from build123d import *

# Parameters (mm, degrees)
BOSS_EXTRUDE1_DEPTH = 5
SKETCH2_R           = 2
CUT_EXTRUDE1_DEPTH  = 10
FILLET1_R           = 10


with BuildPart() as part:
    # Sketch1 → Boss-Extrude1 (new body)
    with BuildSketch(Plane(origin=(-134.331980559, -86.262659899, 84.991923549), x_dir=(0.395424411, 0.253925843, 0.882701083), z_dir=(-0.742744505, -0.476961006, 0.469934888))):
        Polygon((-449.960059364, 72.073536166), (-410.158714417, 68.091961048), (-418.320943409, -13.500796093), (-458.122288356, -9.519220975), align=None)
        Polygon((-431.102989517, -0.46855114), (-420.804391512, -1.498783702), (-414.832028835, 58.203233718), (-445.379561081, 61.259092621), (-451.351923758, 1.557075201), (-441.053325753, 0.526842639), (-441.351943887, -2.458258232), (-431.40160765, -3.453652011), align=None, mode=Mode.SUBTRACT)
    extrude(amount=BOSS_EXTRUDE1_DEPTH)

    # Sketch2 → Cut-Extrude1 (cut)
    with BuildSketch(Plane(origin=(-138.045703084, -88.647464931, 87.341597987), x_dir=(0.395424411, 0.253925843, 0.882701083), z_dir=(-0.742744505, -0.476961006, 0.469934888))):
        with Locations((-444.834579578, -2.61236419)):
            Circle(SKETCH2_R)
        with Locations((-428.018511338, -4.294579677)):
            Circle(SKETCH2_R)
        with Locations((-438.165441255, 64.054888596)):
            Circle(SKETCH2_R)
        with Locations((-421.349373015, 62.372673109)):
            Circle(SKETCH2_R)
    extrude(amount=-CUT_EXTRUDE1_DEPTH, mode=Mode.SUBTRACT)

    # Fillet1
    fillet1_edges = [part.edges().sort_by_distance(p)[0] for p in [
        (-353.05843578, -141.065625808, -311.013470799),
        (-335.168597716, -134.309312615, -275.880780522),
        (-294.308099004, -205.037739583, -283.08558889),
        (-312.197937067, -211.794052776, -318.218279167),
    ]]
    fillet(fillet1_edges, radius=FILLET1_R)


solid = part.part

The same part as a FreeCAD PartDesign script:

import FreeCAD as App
import Part
import Sketcher


def edges_at(feature, points):
    """Names of the edges that pass closest to the given points."""
    edges = feature.Shape.Edges
    near = lambda p: min(range(len(edges)), key=lambda i: edges[i].distToShape(Part.Vertex(*p))[0])
    return sorted({f"Edge{near(p) + 1}" for p in points})

doc = App.newDocument("Part")
body = doc.addObject("PartDesign::Body", "Body")

# Sketch on an angled plane
sketch1 = doc.addObject("Sketcher::SketchObject", "Sketch")
body.addObject(sketch1)
sketch1.Placement = App.Placement(App.Vector(-134.331981, -86.26266, 84.991924), App.Rotation(App.Vector(0.395424411, 0.253925843, 0.882701082), App.Vector(-0.540342609, 0.841445105, 0), App.Vector(-0.742744505, -0.476961006, 0.469934888), "ZXY"))
sketch1.addGeometry([
    Part.LineSegment(App.Vector(-410.158714, 68.091961, 0), App.Vector(-449.960059, 72.073536, 0)),  # 0
    Part.LineSegment(App.Vector(-449.960059, 72.073536, 0), App.Vector(-458.122288, -9.519221, 0)),  # 1
    Part.LineSegment(App.Vector(-458.122288, -9.519221, 0), App.Vector(-418.320943, -13.500796, 0)),  # 2
    Part.LineSegment(App.Vector(-418.320943, -13.500796, 0), App.Vector(-410.158714, 68.091961, 0)),  # 3
    Part.LineSegment(App.Vector(-431.102989, -0.468551, 0), App.Vector(-431.401607, -3.453652, 0)),  # 4
    Part.LineSegment(App.Vector(-431.401607, -3.453652, 0), App.Vector(-441.351943, -2.458258, 0)),  # 5
    Part.LineSegment(App.Vector(-441.351943, -2.458258, 0), App.Vector(-441.053325, 0.526843, 0)),  # 6
    Part.LineSegment(App.Vector(-441.053325, 0.526843, 0), App.Vector(-451.351923, 1.557075, 0)),  # 7
    Part.LineSegment(App.Vector(-451.351923, 1.557075, 0), App.Vector(-445.379561, 61.259093, 0)),  # 8
    Part.LineSegment(App.Vector(-445.379561, 61.259093, 0), App.Vector(-414.832028, 58.203234, 0)),  # 9
    Part.LineSegment(App.Vector(-414.832028, 58.203234, 0), App.Vector(-420.804391, -1.498784, 0)),  # 10
    Part.LineSegment(App.Vector(-420.804391, -1.498784, 0), App.Vector(-431.102989, -0.468551, 0)),  # 11
], False)
sketch1.addConstraint([
    Sketcher.Constraint("Coincident", 0, 2, 1, 1),
    Sketcher.Constraint("Coincident", 1, 2, 2, 1),
    Sketcher.Constraint("Coincident", 2, 2, 3, 1),
    Sketcher.Constraint("Coincident", 3, 2, 0, 1),
    Sketcher.Constraint("Coincident", 4, 2, 5, 1),
    Sketcher.Constraint("Coincident", 5, 2, 6, 1),
    Sketcher.Constraint("Coincident", 6, 2, 7, 1),
    Sketcher.Constraint("Coincident", 7, 2, 8, 1),
    Sketcher.Constraint("Coincident", 8, 2, 9, 1),
    Sketcher.Constraint("Coincident", 9, 2, 10, 1),
    Sketcher.Constraint("Coincident", 10, 2, 11, 1),
    Sketcher.Constraint("Coincident", 11, 2, 4, 1),
    Sketcher.Constraint("Perpendicular", 0, 1),
    Sketcher.Constraint("Perpendicular", 1, 2),
    Sketcher.Constraint("Perpendicular", 2, 3),
    Sketcher.Constraint("Parallel", 3, 4),
    Sketcher.Constraint("Perpendicular", 4, 5),
    Sketcher.Constraint("Perpendicular", 5, 6),
    Sketcher.Constraint("Perpendicular", 6, 7),
    Sketcher.Constraint("Perpendicular", 7, 8),
    Sketcher.Constraint("Perpendicular", 8, 9),
    Sketcher.Constraint("Perpendicular", 9, 10),
    Sketcher.Constraint("Perpendicular", 10, 11),
    Sketcher.Constraint("Equal", 4, 6),
    Sketcher.Constraint("Equal", 7, 11),
    Sketcher.Constraint("Distance", 0, 40.0),
    Sketcher.Constraint("Distance", 1, 82.0),
    Sketcher.Constraint("Distance", 4, 3.0),
    Sketcher.Constraint("Distance", 5, 10.0),
    Sketcher.Constraint("Distance", 8, 60.0),
    Sketcher.Constraint("Distance", 9, 30.7),
    Sketcher.Constraint("DistanceX", 5, 2, 2, 2, 23.031),
    Sketcher.Constraint("DistanceX", 0, 2, 8, 2, 4.580498),
    Sketcher.Constraint("DistanceX", 0, 2, -1, 1, 449.960059),
    Sketcher.Constraint("DistanceY", 1, 2, -1, 1, 9.519221),
    Sketcher.Constraint("DistanceY", 5, 2, -1, 1, 2.458258),
])
pad1 = doc.addObject("PartDesign::Pad", "Pad")
body.addObject(pad1)
pad1.Profile = sketch1
pad1.Length = 5

# Sketch on an angled plane
sketch2 = doc.addObject("Sketcher::SketchObject", "Sketch001")
body.addObject(sketch2)
sketch2.Placement = App.Placement(App.Vector(-138.045703, -88.647465, 87.341598), App.Rotation(App.Vector(0.395424411, 0.253925843, 0.882701082), App.Vector(-0.540342609, 0.841445105, 0), App.Vector(-0.742744505, -0.476961006, 0.469934888), "ZXY"))
sketch2.addGeometry([
    Part.Circle(App.Vector(-444.834579, -2.612364, 0), App.Vector(0, 0, 1), 2),
    Part.Circle(App.Vector(-428.018511, -4.29458, 0), App.Vector(0, 0, 1), 2),
    Part.Circle(App.Vector(-438.165441, 64.054889, 0), App.Vector(0, 0, 1), 2),
    Part.Circle(App.Vector(-421.349372, 62.372673, 0), App.Vector(0, 0, 1), 2),
], False)
sketch2.addConstraint([
    Sketcher.Constraint("Equal", 0, 1),
    Sketcher.Constraint("Equal", 1, 2),
    Sketcher.Constraint("Equal", 2, 3),
    Sketcher.Constraint("Diameter", 0, 4.0),
    Sketcher.Constraint("DistanceX", 0, 3, -1, 1, 444.834579),
    Sketcher.Constraint("DistanceX", 1, 3, -1, 1, 428.018511),
    Sketcher.Constraint("DistanceY", 1, 3, -1, 1, 4.29458),
    Sketcher.Constraint("DistanceX", 2, 3, -1, 1, 438.165441),
    Sketcher.Constraint("DistanceY", -1, 1, 2, 3, 64.054889),
    Sketcher.Constraint("DistanceX", 2, 3, 3, 3, 16.816068),
    Sketcher.Constraint("DistanceY", 0, 3, -1, 1, 2.612364),
    Sketcher.Constraint("DistanceY", -1, 1, 3, 3, 62.372673),
])
pocket1 = doc.addObject("PartDesign::Pocket", "Pocket")
body.addObject(pocket1)
pocket1.Profile = sketch2
pocket1.Length = 10
doc.recompute()

fillet = doc.addObject("PartDesign::Fillet", "Fillet")
body.addObject(fillet)
fillet.Base = (pocket1, edges_at(pocket1, [
    (-353.058, -141.066, -311.013),
    (-335.169, -134.309, -275.881),
    (-294.308, -205.038, -283.086),
    (-312.198, -211.794, -318.218),
]))
fillet.Radius = 10

doc.recompute()
